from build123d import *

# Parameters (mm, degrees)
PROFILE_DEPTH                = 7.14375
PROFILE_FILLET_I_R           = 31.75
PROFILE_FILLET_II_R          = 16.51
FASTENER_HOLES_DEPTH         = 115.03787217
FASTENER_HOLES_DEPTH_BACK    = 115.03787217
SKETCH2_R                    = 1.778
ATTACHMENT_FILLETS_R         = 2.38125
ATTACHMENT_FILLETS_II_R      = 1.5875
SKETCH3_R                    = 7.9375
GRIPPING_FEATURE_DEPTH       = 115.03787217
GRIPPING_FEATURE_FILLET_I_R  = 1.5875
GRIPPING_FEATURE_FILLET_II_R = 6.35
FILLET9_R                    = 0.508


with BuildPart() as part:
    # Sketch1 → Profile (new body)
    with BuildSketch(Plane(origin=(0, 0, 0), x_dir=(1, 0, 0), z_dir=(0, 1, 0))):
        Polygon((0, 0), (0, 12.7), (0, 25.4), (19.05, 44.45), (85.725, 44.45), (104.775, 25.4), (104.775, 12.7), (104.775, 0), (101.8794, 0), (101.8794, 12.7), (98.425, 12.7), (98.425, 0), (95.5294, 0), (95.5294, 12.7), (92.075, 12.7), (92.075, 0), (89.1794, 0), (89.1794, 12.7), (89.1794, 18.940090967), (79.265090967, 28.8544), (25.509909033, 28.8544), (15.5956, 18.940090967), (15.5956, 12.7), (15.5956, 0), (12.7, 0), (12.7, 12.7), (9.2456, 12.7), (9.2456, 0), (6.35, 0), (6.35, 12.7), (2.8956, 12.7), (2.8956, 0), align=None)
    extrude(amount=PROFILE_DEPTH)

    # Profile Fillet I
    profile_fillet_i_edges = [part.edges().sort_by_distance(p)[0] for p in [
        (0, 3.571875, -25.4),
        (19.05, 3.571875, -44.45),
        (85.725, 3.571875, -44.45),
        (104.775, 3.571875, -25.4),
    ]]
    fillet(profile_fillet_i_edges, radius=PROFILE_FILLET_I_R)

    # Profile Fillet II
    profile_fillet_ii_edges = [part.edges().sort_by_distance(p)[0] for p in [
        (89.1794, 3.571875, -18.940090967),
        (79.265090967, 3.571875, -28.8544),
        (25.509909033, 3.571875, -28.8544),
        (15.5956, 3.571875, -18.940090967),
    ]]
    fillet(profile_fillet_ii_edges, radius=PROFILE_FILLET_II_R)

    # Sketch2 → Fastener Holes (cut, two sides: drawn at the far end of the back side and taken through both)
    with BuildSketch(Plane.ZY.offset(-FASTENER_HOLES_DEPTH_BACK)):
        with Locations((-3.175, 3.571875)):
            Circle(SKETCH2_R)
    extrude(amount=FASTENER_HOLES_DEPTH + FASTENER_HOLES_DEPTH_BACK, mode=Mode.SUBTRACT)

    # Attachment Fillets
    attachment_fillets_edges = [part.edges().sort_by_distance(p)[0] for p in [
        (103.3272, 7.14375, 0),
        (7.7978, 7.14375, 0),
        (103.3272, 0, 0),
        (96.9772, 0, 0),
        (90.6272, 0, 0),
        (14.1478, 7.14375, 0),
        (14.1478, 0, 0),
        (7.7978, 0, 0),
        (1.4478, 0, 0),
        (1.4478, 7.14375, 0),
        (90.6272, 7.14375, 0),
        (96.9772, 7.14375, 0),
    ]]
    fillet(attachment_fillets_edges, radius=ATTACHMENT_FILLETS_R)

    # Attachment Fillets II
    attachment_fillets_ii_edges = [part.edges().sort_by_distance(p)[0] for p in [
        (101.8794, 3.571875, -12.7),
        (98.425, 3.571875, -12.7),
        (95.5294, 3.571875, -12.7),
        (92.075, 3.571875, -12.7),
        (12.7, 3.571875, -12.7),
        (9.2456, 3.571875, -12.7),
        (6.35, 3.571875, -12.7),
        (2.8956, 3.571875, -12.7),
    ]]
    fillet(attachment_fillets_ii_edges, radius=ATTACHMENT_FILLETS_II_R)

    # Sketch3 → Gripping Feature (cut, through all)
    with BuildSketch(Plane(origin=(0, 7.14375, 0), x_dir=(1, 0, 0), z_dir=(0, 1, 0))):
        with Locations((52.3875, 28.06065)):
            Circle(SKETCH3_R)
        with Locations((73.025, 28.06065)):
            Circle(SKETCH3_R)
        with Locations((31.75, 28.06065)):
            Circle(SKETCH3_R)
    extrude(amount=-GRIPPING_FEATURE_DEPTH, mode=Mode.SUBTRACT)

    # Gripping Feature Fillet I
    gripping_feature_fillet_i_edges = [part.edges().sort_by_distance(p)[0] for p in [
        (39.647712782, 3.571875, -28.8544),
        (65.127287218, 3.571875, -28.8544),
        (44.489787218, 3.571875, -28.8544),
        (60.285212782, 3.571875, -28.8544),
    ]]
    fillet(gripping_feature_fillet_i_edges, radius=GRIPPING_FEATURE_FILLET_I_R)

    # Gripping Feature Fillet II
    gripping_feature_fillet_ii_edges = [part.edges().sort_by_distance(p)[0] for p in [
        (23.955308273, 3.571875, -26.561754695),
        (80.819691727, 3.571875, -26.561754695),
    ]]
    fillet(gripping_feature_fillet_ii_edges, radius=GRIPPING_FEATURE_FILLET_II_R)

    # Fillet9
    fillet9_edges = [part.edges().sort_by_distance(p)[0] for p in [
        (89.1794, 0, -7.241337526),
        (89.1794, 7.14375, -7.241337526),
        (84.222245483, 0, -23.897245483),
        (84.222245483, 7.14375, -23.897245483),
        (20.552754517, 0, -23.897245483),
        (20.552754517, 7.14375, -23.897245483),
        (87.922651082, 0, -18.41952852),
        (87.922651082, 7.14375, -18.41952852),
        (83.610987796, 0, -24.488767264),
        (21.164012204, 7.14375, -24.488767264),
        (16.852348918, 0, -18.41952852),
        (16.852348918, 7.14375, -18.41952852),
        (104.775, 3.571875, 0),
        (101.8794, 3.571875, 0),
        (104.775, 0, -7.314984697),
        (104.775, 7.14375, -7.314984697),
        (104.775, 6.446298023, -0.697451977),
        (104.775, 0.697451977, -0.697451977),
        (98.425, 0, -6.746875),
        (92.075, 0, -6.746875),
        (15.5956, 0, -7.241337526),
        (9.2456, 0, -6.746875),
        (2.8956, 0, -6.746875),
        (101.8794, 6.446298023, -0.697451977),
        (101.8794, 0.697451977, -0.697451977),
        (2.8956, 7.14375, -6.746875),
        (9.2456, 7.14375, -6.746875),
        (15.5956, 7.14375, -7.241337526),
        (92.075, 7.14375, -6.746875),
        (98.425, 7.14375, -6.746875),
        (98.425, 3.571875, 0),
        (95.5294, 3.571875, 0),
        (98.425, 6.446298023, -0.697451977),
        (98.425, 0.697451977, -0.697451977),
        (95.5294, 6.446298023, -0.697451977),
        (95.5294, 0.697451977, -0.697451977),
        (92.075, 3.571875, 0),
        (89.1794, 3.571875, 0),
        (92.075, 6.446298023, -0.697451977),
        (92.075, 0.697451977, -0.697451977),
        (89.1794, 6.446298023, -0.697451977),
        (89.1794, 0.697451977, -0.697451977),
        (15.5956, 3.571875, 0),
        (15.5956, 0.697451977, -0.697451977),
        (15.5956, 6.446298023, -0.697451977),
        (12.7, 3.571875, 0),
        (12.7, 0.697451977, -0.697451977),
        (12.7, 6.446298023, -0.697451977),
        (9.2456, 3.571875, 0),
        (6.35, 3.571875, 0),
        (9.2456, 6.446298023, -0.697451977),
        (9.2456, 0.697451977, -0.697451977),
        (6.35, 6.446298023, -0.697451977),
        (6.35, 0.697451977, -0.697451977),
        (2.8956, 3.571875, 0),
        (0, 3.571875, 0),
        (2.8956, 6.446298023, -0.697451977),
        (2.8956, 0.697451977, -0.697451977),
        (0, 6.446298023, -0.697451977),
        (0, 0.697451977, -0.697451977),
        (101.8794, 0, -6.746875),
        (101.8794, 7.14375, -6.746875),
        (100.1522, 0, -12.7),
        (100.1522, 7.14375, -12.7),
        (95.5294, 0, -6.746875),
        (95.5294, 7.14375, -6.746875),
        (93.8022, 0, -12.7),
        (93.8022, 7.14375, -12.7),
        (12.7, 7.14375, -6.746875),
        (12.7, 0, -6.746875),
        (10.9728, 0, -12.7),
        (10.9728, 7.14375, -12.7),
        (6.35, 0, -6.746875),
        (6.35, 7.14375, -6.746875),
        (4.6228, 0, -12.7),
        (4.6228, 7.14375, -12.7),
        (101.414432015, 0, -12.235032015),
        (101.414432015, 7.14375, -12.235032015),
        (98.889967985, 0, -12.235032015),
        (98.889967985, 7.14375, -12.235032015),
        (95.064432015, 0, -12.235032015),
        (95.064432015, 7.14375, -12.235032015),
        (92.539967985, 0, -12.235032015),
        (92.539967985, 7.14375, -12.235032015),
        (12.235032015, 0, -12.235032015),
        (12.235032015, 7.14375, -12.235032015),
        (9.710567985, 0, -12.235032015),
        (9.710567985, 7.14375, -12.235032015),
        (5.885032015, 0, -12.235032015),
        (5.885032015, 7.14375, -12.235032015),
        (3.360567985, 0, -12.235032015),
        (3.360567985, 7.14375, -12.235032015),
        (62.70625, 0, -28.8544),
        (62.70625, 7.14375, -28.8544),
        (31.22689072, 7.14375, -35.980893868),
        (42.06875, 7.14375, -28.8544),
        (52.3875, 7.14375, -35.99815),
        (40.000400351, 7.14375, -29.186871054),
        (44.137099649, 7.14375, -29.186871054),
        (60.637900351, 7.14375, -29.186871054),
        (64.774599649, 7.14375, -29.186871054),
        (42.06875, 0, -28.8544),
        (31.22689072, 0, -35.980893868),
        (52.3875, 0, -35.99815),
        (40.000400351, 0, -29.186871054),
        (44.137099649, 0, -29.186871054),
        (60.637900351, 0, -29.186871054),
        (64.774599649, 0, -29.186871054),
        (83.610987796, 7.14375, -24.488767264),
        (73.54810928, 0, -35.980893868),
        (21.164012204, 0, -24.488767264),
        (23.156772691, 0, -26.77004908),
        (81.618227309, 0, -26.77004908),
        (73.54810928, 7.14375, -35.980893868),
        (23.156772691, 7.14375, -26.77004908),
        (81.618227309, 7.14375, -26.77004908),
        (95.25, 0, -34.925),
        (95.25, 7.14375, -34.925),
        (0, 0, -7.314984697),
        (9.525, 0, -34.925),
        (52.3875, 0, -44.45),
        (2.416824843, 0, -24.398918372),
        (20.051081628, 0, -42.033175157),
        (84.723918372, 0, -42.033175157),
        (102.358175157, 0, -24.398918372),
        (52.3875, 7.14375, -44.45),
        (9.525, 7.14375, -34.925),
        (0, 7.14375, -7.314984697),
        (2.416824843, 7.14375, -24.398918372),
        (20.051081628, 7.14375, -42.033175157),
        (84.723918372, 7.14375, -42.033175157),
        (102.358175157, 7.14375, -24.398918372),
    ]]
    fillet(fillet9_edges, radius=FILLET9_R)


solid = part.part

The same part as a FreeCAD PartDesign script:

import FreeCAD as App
import Part
import Sketcher
from FreeCAD import Vector
Q = App.Units.Quantity


def edges_at(feature, points):
    """Names of the edges that pass closest to the given points."""
    edges = feature.Shape.Edges
    near = lambda p: min(range(len(edges)), key=lambda i: edges[i].distToShape(Part.Vertex(*p))[0])
    return sorted({f"Edge{near(p) + 1}" for p in points})


def add_polygon(sketch, points):
    """Adds a closed chain of lines whose ends are joined by coincident constraints."""
    first, n = sketch.GeometryCount, len(points)
    for a, b in zip(points, points[1:] + points[:1]):
        sketch.addGeometry(Part.LineSegment(App.Vector(*a, 0), App.Vector(*b, 0)), False)
    for i in range(n):
        sketch.addConstraint(Sketcher.Constraint("Coincident", first + i, 2, first + (i + 1) % n, 1))

doc = App.newDocument("Part")
body = doc.addObject("PartDesign::Body", "Body")

sketch1 = doc.addObject("Sketcher::SketchObject", "Sketch")
body.addObject(sketch1)
sketch1.AttachmentSupport = (doc.XZ_Plane, [""])
sketch1.MapMode = "FlatFace"
add_polygon(sketch1, [(0, -25.4), (0, 0), (2.9, 0), (2.9, -12.7), (6.3, -12.7), (6.3, 0), (9.2, 0), (9.2, -12.7), (12.7, -12.7), (12.7, 0), (15.6, 0), (15.6, -18.9), (25.5, -28.9), (79.3, -28.9), (89.2, -18.9), (89.2, 0), (92.1, 0), (92.1, -12.7), (95.5, -12.7), (95.5, 0), (98.4, 0), (98.4, -12.7), (101.9, -12.7), (101.9, 0), (104.8, 0), (104.8, -25.4), (85.7, -44.5), (19.1, -44.5)])
sketch1.addConstraint([
    Sketcher.Constraint("Vertical", 0),
    Sketcher.Constraint("Horizontal", 1),
    Sketcher.Constraint("Vertical", 2),
    Sketcher.Constraint("Horizontal", 3),
    Sketcher.Constraint("Vertical", 4),
    Sketcher.Constraint("Horizontal", 5),
    Sketcher.Constraint("Vertical", 6),
    Sketcher.Constraint("Horizontal", 7),
    Sketcher.Constraint("Vertical", 8),
    Sketcher.Constraint("Horizontal", 9),
    Sketcher.Constraint("Vertical", 10),
    Sketcher.Constraint("Horizontal", 12),
    Sketcher.Constraint("Vertical", 14),
    Sketcher.Constraint("Horizontal", 15),
    Sketcher.Constraint("Vertical", 16),
    Sketcher.Constraint("Horizontal", 17),
    Sketcher.Constraint("Vertical", 18),
    Sketcher.Constraint("Horizontal", 19),
    Sketcher.Constraint("Vertical", 20),
    Sketcher.Constraint("Horizontal", 21),
    Sketcher.Constraint("Vertical", 22),
    Sketcher.Constraint("Horizontal", 23),
    Sketcher.Constraint("Vertical", 24),
    Sketcher.Constraint("Horizontal", 26),
    Sketcher.Constraint("Coincident", 0, 2, -1, 1),
    Sketcher.Constraint("PointOnObject", 4, 2, -1),
    Sketcher.Constraint("PointOnObject", 8, 2, -1),
    Sketcher.Constraint("PointOnObject", 14, 2, -1),
    Sketcher.Constraint("PointOnObject", 18, 2, -1),
    Sketcher.Constraint("PointOnObject", 22, 2, -1),
    Sketcher.Constraint("Perpendicular", 11, 13),
    Sketcher.Constraint("Parallel", 13, 25),
    Sketcher.Constraint("Perpendicular", 25, 27),
    Sketcher.Constraint("Horizontal", 3, 2, 6, 2),
    Sketcher.Constraint("Horizontal", 10, 2, 13, 2),
    Sketcher.Constraint("Horizontal", 7, 2, 16, 2),
    Sketcher.Constraint("Horizontal", 17, 2, 20, 2),
    Sketcher.Constraint("Horizontal", 24, 2, 27, 2),
    Sketcher.Constraint("Equal", 1, 5),
    Sketcher.Constraint("Equal", 3, 7),
    Sketcher.Constraint("Equal", 5, 9),
    Sketcher.Constraint("Equal", 9, 15),
    Sketcher.Constraint("Equal", 7, 17),
    Sketcher.Constraint("Equal", 15, 19),
    Sketcher.Constraint("Equal", 17, 21),
    Sketcher.Constraint("Equal", 19, 23),
    Sketcher.Constraint("Equal", 11, 13),
    Sketcher.Constraint("DistanceY", 0, 1, 0, 2, Q("1 in")),
    Sketcher.Constraint("DistanceY", 2, 2, 2, 1, Q("0.5 in")),
    Sketcher.Constraint("DistanceX", -1, 1, 7, 2, Q("0.5 in")),
    Sketcher.Constraint("DistanceX", 3, 2, 26, 2, Q("0.5 in")),
    Sketcher.Constraint("DistanceX", 1, 1, 1, 2, Q("0.114 in")),
    Sketcher.Constraint("DistanceX", 26, 2, 26, 1, Q("2.625 in")),
    Sketcher.Constraint("DistanceY", 11, 2, -1, 1, Q("1.136 in")),
    Sketcher.Constraint("DistanceX", 12, 1, 12, 2, Q("53.755182 mm")),
])
pad1 = doc.addObject("PartDesign::Pad", "Pad")
body.addObject(pad1)
pad1.Profile = sketch1
pad1.Length = Q("0.28125 in")
pad1.Reversed = True
doc.recompute()

fillet = doc.addObject("PartDesign::Fillet", "Fillet")
body.addObject(fillet)
fillet.Base = (pad1, edges_at(pad1, [
    (0, 3.572, -25.4),
    (19.05, 3.572, -44.45),
    (85.725, 3.572, -44.45),
    (104.775, 3.572, -25.4),
]))
fillet.Radius = Q("1.25 in")
doc.recompute()

fillet2 = doc.addObject("PartDesign::Fillet", "Fillet001")
body.addObject(fillet2)
fillet2.Base = (fillet, edges_at(fillet, [
    (89.179, 3.572, -18.94),
    (79.265, 3.572, -28.854),
    (25.51, 3.572, -28.854),
    (15.596, 3.572, -18.94),
]))
fillet2.Radius = Q("0.65 in")

sketch2 = doc.addObject("Sketcher::SketchObject", "Sketch001")
body.addObject(sketch2)
sketch2.AttachmentSupport = (doc.YZ_Plane, [""])
sketch2.MapMode = "FlatFace"
sketch2.addGeometry(Part.Circle(Vector(3.6, -3.2, 0), Vector(0, 0, 1), 1.8), False)
sketch2.addConstraint([
    Sketcher.Constraint("Diameter", 0, Q("0.14 in")),
    Sketcher.Constraint("DistanceX", -1, 1, 0, 3, Q("0.140625 in")),
    Sketcher.Constraint("DistanceY", 0, 3, -1, 1, Q("0.125 in")),
])
pocket1 = doc.addObject("PartDesign::Pocket", "Pocket")
body.addObject(pocket1)
pocket1.Profile = sketch2
pocket1.Type = "ThroughAll"
pocket1.Midplane = True
doc.recompute()

fillet3 = doc.addObject("PartDesign::Fillet", "Fillet002")
body.addObject(fillet3)
fillet3.Base = (pocket1, edges_at(pocket1, [
    (103.327, 7.144, 0),
    (7.798, 7.144, 0),
    (103.327, 0, 0),
    (96.977, 0, 0),
    (90.627, 0, 0),
    (14.148, 7.144, 0),
    (14.148, 0, 0),
    (7.798, 0, 0),
    (1.448, 0, 0),
    (1.448, 7.144, 0),
    (90.627, 7.144, 0),
    (96.977, 7.144, 0),
]))
fillet3.Radius = Q("0.09375 in")
doc.recompute()

fillet4 = doc.addObject("PartDesign::Fillet", "Fillet003")
body.addObject(fillet4)
fillet4.Base = (fillet3, edges_at(fillet3, [
    (101.879, 3.572, -12.7),
    (98.425, 3.572, -12.7),
    (95.529, 3.572, -12.7),
    (92.075, 3.572, -12.7),
    (12.7, 3.572, -12.7),
    (9.246, 3.572, -12.7),
    (6.35, 3.572, -12.7),
    (2.896, 3.572, -12.7),
]))
fillet4.Radius = Q("0.0625 in")

sketch3 = doc.addObject("Sketcher::SketchObject", "Sketch002")
body.addObject(sketch3)
sketch3.AttachmentSupport = (doc.XZ_Plane, [""])
sketch3.MapMode = "FlatFace"
sketch3.AttachmentOffset = App.Placement(Vector(0, 0, -0.28125 * 25.4), App.Rotation())
sketch3.addGeometry([
    Part.Circle(Vector(52, -28, 0), Vector(0, 0, 1), 8),
    Part.Circle(Vector(73, -28, 0), Vector(0, 0, 1), 8),
    Part.Circle(Vector(32, -28, 0), Vector(0, 0, 1), 8),
], False)
sketch3.addConstraint([
    Sketcher.Constraint("Equal", 0, 1),
    Sketcher.Constraint("Equal", 1, 2),
    Sketcher.Constraint("Horizontal", 0, 3, 1, 3),
    Sketcher.Constraint("Horizontal", 1, 3, 2, 3),
    Sketcher.Constraint("Diameter", 0, Q("0.625 in")),
    Sketcher.Constraint("DistanceX", -1, 1, 2, 3, Q("1.25 in")),
    Sketcher.Constraint("DistanceX", -1, 1, 0, 3, Q("2.0625 in")),
    Sketcher.Constraint("DistanceX", -1, 1, 1, 3, Q("2.875 in")),
    Sketcher.Constraint("DistanceY", 0, 3, -1, 1, Q("28.06065 mm")),
])
pocket2 = doc.addObject("PartDesign::Pocket", "Pocket001")
body.addObject(pocket2)
pocket2.Profile = sketch3
pocket2.Type = "ThroughAll"
pocket2.Reversed = True
doc.recompute()

fillet5 = doc.addObject("PartDesign::Fillet", "Fillet004")
body.addObject(fillet5)
fillet5.Base = (pocket2, edges_at(pocket2, [
    (39.648, 3.572, -28.854),
    (65.127, 3.572, -28.854),
    (44.49, 3.572, -28.854),
    (60.285, 3.572, -28.854),
]))
fillet5.Radius = Q("0.0625 in")
doc.recompute()

fillet6 = doc.addObject("PartDesign::Fillet", "Fillet005")
body.addObject(fillet6)
fillet6.Base = (fillet5, edges_at(fillet5, [(23.955, 3.572, -26.562), (80.82, 3.572, -26.562)]))
fillet6.Radius = Q("0.25 in")
doc.recompute()

fillet7 = doc.addObject("PartDesign::Fillet", "Fillet006")
body.addObject(fillet7)
fillet7.Base = (fillet6, edges_at(fillet6, [
    (89.179, 0, -7.241),
    (89.179, 7.144, -7.241),
    (84.222, 0, -23.897),
    (84.222, 7.144, -23.897),
    (20.553, 0, -23.897),
    (20.553, 7.144, -23.897),
    (87.923, 0, -18.42),
    (87.923, 7.144, -18.42),
    (83.611, 0, -24.489),
    (21.164, 7.144, -24.489),
    (16.852, 0, -18.42),
    (16.852, 7.144, -18.42),
    (104.775, 3.572, 0),
    (101.879, 3.572, 0),
    (104.775, 0, -7.315),
    (104.775, 7.144, -7.315),
    (104.775, 6.446, -0.697),
    (104.775, 0.697, -0.697),
    (98.425, 0, -6.747),
    (92.075, 0, -6.747),
    (15.596, 0, -7.241),
    (9.246, 0, -6.747),
    (2.896, 0, -6.747),
    (101.879, 6.446, -0.697),
    (101.879, 0.697, -0.697),
    (2.896, 7.144, -6.747),
    (9.246, 7.144, -6.747),
    (15.596, 7.144, -7.241),
    (92.075, 7.144, -6.747),
    (98.425, 7.144, -6.747),
    (98.425, 3.572, 0),
    (95.529, 3.572, 0),
    (98.425, 6.446, -0.697),
    (98.425, 0.697, -0.697),
    (95.529, 6.446, -0.697),
    (95.529, 0.697, -0.697),
    (92.075, 3.572, 0),
    (89.179, 3.572, 0),
    (92.075, 6.446, -0.697),
    (92.075, 0.697, -0.697),
    (89.179, 6.446, -0.697),
    (89.179, 0.697, -0.697),
    (15.596, 3.572, 0),
    (15.596, 0.697, -0.697),
    (15.596, 6.446, -0.697),
    (12.7, 3.572, 0),
    (12.7, 0.697, -0.697),
    (12.7, 6.446, -0.697),
    (9.246, 3.572, 0),
    (6.35, 3.572, 0),
    (9.246, 6.446, -0.697),
    (9.246, 0.697, -0.697),
    (6.35, 6.446, -0.697),
    (6.35, 0.697, -0.697),
    (2.896, 3.572, 0),
    (0, 3.572, 0),
    (2.896, 6.446, -0.697),
    (2.896, 0.697, -0.697),
    (0, 6.446, -0.697),
    (0, 0.697, -0.697),
    (101.879, 0, -6.747),
    (101.879, 7.144, -6.747),
    (100.152, 0, -12.7),
    (100.152, 7.144, -12.7),
    (95.529, 0, -6.747),
    (95.529, 7.144, -6.747),
    (93.802, 0, -12.7),
    (93.802, 7.144, -12.7),
    (12.7, 7.144, -6.747),
    (12.7, 0, -6.747),
    (10.973, 0, -12.7),
    (10.973, 7.144, -12.7),
    (6.35, 0, -6.747),
    (6.35, 7.144, -6.747),
    (4.623, 0, -12.7),
    (4.623, 7.144, -12.7),
    (101.414, 0, -12.235),
    (101.414, 7.144, -12.235),
    (98.89, 0, -12.235),
    (98.89, 7.144, -12.235),
    (95.064, 0, -12.235),
    (95.064, 7.144, -12.235),
    (92.54, 0, -12.235),
    (92.54, 7.144, -12.235),
    (12.235, 0, -12.235),
    (12.235, 7.144, -12.235),
    (9.711, 0, -12.235),
    (9.711, 7.144, -12.235),
    (5.885, 0, -12.235),
    (5.885, 7.144, -12.235),
    (3.361, 0, -12.235),
    (3.361, 7.144, -12.235),
    (62.706, 0, -28.854),
    (62.706, 7.144, -28.854),
    (31.227, 7.144, -35.981),
    (42.069, 7.144, -28.854),
    (52.388, 7.144, -35.998),
    (40, 7.144, -29.187),
    (44.137, 7.144, -29.187),
    (60.638, 7.144, -29.187),
    (64.775, 7.144, -29.187),
    (42.069, 0, -28.854),
    (31.227, 0, -35.981),
    (52.388, 0, -35.998),
    (40, 0, -29.187),
    (44.137, 0, -29.187),
    (60.638, 0, -29.187),
    (64.775, 0, -29.187),
    (83.611, 7.144, -24.489),
    (73.548, 0, -35.981),
    (21.164, 0, -24.489),
    (23.157, 0, -26.77),
    (81.618, 0, -26.77),
    (73.548, 7.144, -35.981),
    (23.157, 7.144, -26.77),
    (81.618, 7.144, -26.77),
    (95.25, 0, -34.925),
    (95.25, 7.144, -34.925),
    (0, 0, -7.315),
    (9.525, 0, -34.925),
    (52.388, 0, -44.45),
    (2.417, 0, -24.399),
    (20.051, 0, -42.033),
    (84.724, 0, -42.033),
    (102.358, 0, -24.399),
    (52.388, 7.144, -44.45),
    (9.525, 7.144, -34.925),
    (0, 7.144, -7.315),
    (2.417, 7.144, -24.399),
    (20.051, 7.144, -42.033),
    (84.724, 7.144, -42.033),
    (102.358, 7.144, -24.399),
]))
fillet7.Radius = Q("0.02 in")

doc.recompute()
